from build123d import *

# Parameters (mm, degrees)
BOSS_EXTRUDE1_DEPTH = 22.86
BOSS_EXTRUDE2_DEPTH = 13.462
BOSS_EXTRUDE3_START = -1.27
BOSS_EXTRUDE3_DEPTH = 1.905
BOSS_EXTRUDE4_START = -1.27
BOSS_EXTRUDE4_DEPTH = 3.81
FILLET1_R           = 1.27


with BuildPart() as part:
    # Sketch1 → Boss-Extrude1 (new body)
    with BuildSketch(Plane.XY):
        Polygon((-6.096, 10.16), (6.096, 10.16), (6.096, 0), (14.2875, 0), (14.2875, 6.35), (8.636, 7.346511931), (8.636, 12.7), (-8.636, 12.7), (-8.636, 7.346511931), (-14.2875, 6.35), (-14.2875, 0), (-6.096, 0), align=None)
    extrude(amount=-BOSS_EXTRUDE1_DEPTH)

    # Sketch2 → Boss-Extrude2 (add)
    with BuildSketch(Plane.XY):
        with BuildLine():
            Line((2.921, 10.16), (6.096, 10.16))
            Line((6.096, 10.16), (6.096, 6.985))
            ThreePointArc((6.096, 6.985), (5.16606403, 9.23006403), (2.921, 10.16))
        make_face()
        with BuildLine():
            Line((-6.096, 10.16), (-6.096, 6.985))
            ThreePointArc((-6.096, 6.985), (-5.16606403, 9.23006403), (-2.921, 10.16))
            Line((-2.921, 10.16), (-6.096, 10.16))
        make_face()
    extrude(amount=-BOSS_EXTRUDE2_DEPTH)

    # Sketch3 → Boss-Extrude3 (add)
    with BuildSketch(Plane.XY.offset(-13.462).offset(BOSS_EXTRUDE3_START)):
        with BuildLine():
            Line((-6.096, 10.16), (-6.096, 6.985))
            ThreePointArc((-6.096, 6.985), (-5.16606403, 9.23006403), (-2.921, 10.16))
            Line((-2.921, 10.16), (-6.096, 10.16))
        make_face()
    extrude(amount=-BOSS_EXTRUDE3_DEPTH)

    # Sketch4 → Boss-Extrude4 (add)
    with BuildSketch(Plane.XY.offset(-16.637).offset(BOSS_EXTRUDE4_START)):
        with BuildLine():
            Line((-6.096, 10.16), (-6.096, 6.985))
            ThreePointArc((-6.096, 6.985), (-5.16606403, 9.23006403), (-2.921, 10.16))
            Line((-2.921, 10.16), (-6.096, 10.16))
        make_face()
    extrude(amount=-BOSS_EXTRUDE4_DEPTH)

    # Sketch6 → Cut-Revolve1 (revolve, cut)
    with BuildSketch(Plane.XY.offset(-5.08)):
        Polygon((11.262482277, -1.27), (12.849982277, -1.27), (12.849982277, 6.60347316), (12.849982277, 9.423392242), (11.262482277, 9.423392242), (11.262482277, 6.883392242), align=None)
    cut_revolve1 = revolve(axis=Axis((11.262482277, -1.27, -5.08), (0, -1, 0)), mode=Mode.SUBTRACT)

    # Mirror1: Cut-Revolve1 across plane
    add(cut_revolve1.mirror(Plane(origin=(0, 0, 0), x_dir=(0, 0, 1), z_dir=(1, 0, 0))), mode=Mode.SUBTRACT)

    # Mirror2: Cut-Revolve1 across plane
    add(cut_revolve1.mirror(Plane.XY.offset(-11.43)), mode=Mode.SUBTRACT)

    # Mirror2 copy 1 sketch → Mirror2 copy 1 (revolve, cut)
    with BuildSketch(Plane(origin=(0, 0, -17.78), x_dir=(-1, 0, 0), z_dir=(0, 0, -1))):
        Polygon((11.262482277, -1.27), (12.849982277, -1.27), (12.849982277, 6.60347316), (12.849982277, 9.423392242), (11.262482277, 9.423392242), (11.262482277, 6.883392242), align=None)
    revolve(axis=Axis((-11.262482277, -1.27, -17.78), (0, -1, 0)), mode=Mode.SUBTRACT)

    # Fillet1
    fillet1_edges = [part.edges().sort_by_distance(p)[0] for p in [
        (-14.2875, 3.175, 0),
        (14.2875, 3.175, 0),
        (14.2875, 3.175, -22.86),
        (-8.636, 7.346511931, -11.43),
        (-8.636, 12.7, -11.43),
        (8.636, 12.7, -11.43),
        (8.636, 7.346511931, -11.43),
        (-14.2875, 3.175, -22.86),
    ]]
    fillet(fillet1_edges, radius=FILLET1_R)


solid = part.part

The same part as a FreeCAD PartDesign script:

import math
import FreeCAD as App
import Part
import Sketcher

V = App.Vector
Q = App.Units.Quantity


def edges_at(feature, points):
    """Names of the edges that pass closest to the given points."""
    edges = feature.Shape.Edges
    near = lambda p: min(range(len(edges)), key=lambda i: edges[i].distToShape(Part.Vertex(*p))[0])
    return sorted({f"Edge{near(p) + 1}" for p in points})


def add_polygon(sketch, points):
    """Adds a closed chain of lines whose ends are joined by coincident constraints."""
    first, n = sketch.GeometryCount, len(points)
    for a, b in zip(points, points[1:] + points[:1]):
        sketch.addGeometry(Part.LineSegment(App.Vector(*a, 0), App.Vector(*b, 0)), False)
    for i in range(n):
        sketch.addConstraint(Sketcher.Constraint("Coincident", first + i, 2, first + (i + 1) % n, 1))

doc = App.newDocument("Part")
body = doc.addObject("PartDesign::Body", "Body")

sketch1 = body.newObject("Sketcher::SketchObject", "Sketch")
sketch1.AttachmentSupport = (doc.getObject("XY_Plane"), [""])
sketch1.MapMode = "FlatFace"
add_polygon(sketch1, [(-6.096, 10.16), (6.096, 10.16), (6.096, 0), (14.2875, 0), (14.2875, 6.35), (8.636, 7.346512), (8.636, 12.7), (-8.636, 12.7), (-8.636, 7.346512), (-14.2875, 6.35), (-14.2875, 0), (-6.096, 0)])
sketch1.addConstraint(Sketcher.Constraint("Horizontal", 0))
sketch1.addConstraint(Sketcher.Constraint("Vertical", 1))
sketch1.addConstraint(Sketcher.Constraint("Horizontal", 2))
sketch1.addConstraint(Sketcher.Constraint("Vertical", 3))
sketch1.addConstraint(Sketcher.Constraint("Vertical", 5))
sketch1.addConstraint(Sketcher.Constraint("Horizontal", 6))
sketch1.addConstraint(Sketcher.Constraint("Vertical", 7))
sketch1.addConstraint(Sketcher.Constraint("Vertical", 9))
sketch1.addConstraint(Sketcher.Constraint("Horizontal", 10))
sketch1.addConstraint(Sketcher.Constraint("Vertical", 11))
sketch1.addConstraint(Sketcher.Constraint("Symmetric", 2, 2, 9, 2, -1, 1))
sketch1.addConstraint(Sketcher.Constraint("Symmetric", 4, 2, 7, 2, -2))
sketch1.addConstraint(Sketcher.Constraint("Symmetric", 1, 2, 10, 2, -2))
sketch1.addConstraint(Sketcher.Constraint("Horizontal", 3, 2, 8, 2))
sketch1.addConstraint(Sketcher.Constraint("DistanceY", 1, 2, 1, 1, Q("0.4 in")))
sketch1.addConstraint(Sketcher.Constraint("Angle", 4, Q("170 deg")))
sketch1.addConstraint(Sketcher.Constraint("DistanceX", 0, 1, 0, 2, Q("0.48 in")))
sketch1.addConstraint(Sketcher.Constraint("DistanceX", 6, 2, 6, 1, Q("0.68 in")))
sketch1.addConstraint(Sketcher.Constraint("DistanceY", 3, 1, 3, 2, Q("0.25 in")))
sketch1.addConstraint(Sketcher.Constraint("DistanceY", -1, 1, 5, 2, Q("0.5 in")))
sketch1.addConstraint(Sketcher.Constraint("DistanceX", 2, 1, 2, 2, Q("0.3225 in")))
pad1 = body.newObject("PartDesign::Pad", "Pad")
pad1.Profile = sketch1
pad1.Length = Q("0.9 in")
pad1.Reversed = True

sketch2 = body.newObject("Sketcher::SketchObject", "Sketch001")
sketch2.AttachmentSupport = (doc.getObject("XY_Plane"), [""])
sketch2.MapMode = "FlatFace"
sketch2.addGeometry(Part.LineSegment(V(6.096, 10.16, 0), V(2.921, 10.16, 0)), False)
sketch2.addGeometry(Part.ArcOfCircle(Part.Circle(V(2.921, 6.985, 0), V(0, 0, 1), 3.175), math.radians(0), math.radians(90)), False)
sketch2.addGeometry(Part.LineSegment(V(6.096, 6.985, 0), V(6.096, 10.16, 0)), False)
sketch2.addGeometry(Part.LineSegment(V(-6.096, 10.16, 0), V(-6.096, 6.985, 0)), False)
sketch2.addGeometry(Part.ArcOfCircle(Part.Circle(V(-2.921, 6.985, 0), V(0, 0, 1), 3.175), math.radians(90), math.radians(180)), False)
sketch2.addGeometry(Part.LineSegment(V(-2.921, 10.16, 0), V(-6.096, 10.16, 0)), False)
sketch2.addConstraint(Sketcher.Constraint("Tangent", 0, 2, 1, 2))
sketch2.addConstraint(Sketcher.Constraint("Tangent", 1, 1, 2, 1))
sketch2.addConstraint(Sketcher.Constraint("Coincident", 2, 2, 0, 1))
sketch2.addConstraint(Sketcher.Constraint("Tangent", 3, 2, 4, 2))
sketch2.addConstraint(Sketcher.Constraint("Tangent", 4, 1, 5, 1))
sketch2.addConstraint(Sketcher.Constraint("Coincident", 5, 2, 3, 1))
sketch2.addConstraint(Sketcher.Constraint("Horizontal", 0))
sketch2.addConstraint(Sketcher.Constraint("Vertical", 2))
sketch2.addConstraint(Sketcher.Constraint("Vertical", 3))
sketch2.addConstraint(Sketcher.Constraint("Horizontal", 5))
sketch2.addConstraint(Sketcher.Constraint("Equal", 1, 4))
sketch2.addConstraint(Sketcher.Constraint("Symmetric", 1, 3, 4, 3, -2))
sketch2.addConstraint(Sketcher.Constraint("Radius", 1, Q("0.125 in")))
sketch2.addConstraint(Sketcher.Constraint("DistanceY", -1, 1, 0, 2, Q("0.4 in")))
sketch2.addConstraint(Sketcher.Constraint("DistanceX", -1, 1, 1, 1, Q("0.24 in")))
pad2 = body.newObject("PartDesign::Pad", "Pad001")
pad2.Profile = sketch2
pad2.Length = Q("0.53 in")
pad2.Reversed = True

sketch3 = body.newObject("Sketcher::SketchObject", "Sketch002")
sketch3.AttachmentSupport = (doc.getObject("XY_Plane"), [""])
sketch3.MapMode = "FlatFace"
sketch3.AttachmentOffset = App.Placement(V(0, 0, -0.58 * 25.4), App.Rotation())
sketch3.addGeometry(Part.LineSegment(V(-6.096, 10.16, 0), V(-6.096, 6.985, 0)), False)
sketch3.addGeometry(Part.ArcOfCircle(Part.Circle(V(-2.921, 6.985, 0), V(0, 0, 1), 3.175), math.radians(90), math.radians(180)), False)
sketch3.addGeometry(Part.LineSegment(V(-2.921, 10.16, 0), V(-6.096, 10.16, 0)), False)
sketch3.addConstraint(Sketcher.Constraint("Tangent", 0, 2, 1, 2))
sketch3.addConstraint(Sketcher.Constraint("Tangent", 1, 1, 2, 1))
sketch3.addConstraint(Sketcher.Constraint("Coincident", 2, 2, 0, 1))
sketch3.addConstraint(Sketcher.Constraint("Vertical", 0))
sketch3.addConstraint(Sketcher.Constraint("Horizontal", 2))
sketch3.addConstraint(Sketcher.Constraint("Radius", 1, Q("0.125 in")))
sketch3.addConstraint(Sketcher.Constraint("DistanceY", -1, 1, 1, 1, Q("0.4 in")))
sketch3.addConstraint(Sketcher.Constraint("DistanceX", 0, 2, -1, 1, Q("0.24 in")))
pad3 = body.newObject("PartDesign::Pad", "Pad002")
pad3.Profile = sketch3
pad3.Length = Q("0.075 in")
pad3.Reversed = True

sketch4 = body.newObject("Sketcher::SketchObject", "Sketch003")
sketch4.AttachmentSupport = (doc.getObject("XY_Plane"), [""])
sketch4.MapMode = "FlatFace"
sketch4.AttachmentOffset = App.Placement(V(0, 0, -0.705 * 25.4), App.Rotation())
sketch4.addGeometry(Part.LineSegment(V(-6.096, 10.16, 0), V(-6.096, 6.985, 0)), False)
sketch4.addGeometry(Part.ArcOfCircle(Part.Circle(V(-2.921, 6.985, 0), V(0, 0, 1), 3.175), math.radians(90), math.radians(180)), False)
sketch4.addGeometry(Part.LineSegment(V(-2.921, 10.16, 0), V(-6.096, 10.16, 0)), False)
sketch4.addConstraint(Sketcher.Constraint("Tangent", 0, 2, 1, 2))
sketch4.addConstraint(Sketcher.Constraint("Tangent", 1, 1, 2, 1))
sketch4.addConstraint(Sketcher.Constraint("Coincident", 2, 2, 0, 1))
sketch4.addConstraint(Sketcher.Constraint("Vertical", 0))
sketch4.addConstraint(Sketcher.Constraint("Horizontal", 2))
sketch4.addConstraint(Sketcher.Constraint("Radius", 1, Q("0.125 in")))
sketch4.addConstraint(Sketcher.Constraint("DistanceY", -1, 1, 1, 1, Q("0.4 in")))
sketch4.addConstraint(Sketcher.Constraint("DistanceX", 0, 2, -1, 1, Q("0.24 in")))
pad4 = body.newObject("PartDesign::Pad", "Pad003")
pad4.Profile = sketch4
pad4.Length = Q("0.15 in")
pad4.Reversed = True

sketch5 = body.newObject("Sketcher::SketchObject", "Sketch004")
sketch5.AttachmentSupport = (doc.getObject("XY_Plane"), [""])
sketch5.MapMode = "FlatFace"
sketch5.AttachmentOffset = App.Placement(V(0, 0, -0.2 * 25.4), App.Rotation())
add_polygon(sketch5, [(11.262482, -1.27), (12.849982, -1.27), (12.849982, 9.423392), (11.262482, 9.423392)])
sketch5.addGeometry(Part.LineSegment(V(11.262482, 9.423392, 0), V(11.262482, -1.27, 0)), True)
sketch5.addConstraint(Sketcher.Constraint("Horizontal", 0))
sketch5.addConstraint(Sketcher.Constraint("Vertical", 1))
sketch5.addConstraint(Sketcher.Constraint("Horizontal", 2))
sketch5.addConstraint(Sketcher.Constraint("Vertical", 3))
sketch5.addConstraint(Sketcher.Constraint("Vertical", 4))
sketch5.addConstraint(Sketcher.Constraint("Coincident", 4, 1, 2, 2))
sketch5.addConstraint(Sketcher.Constraint("Horizontal", 0, 2, 4, 2))
sketch5.addConstraint(Sketcher.Constraint("DistanceX", 0, 1, 0, 2, Q("0.0625 in")))
sketch5.addConstraint(Sketcher.Constraint("DistanceY", 0, 2, -1, 1, Q("0.05 in")))
sketch5.addConstraint(Sketcher.Constraint("DistanceY", 1, 1, 1, 2, 10.693392))
sketch5.addConstraint(Sketcher.Constraint("DistanceX", -1, 1, 0, 2, 12.849982))
groove = body.newObject("PartDesign::Groove", "Groove")
groove.Profile = sketch5
groove.ReferenceAxis = (sketch5, ["Axis0"])
groove.Angle = 360
doc.recompute()

mirrored = body.newObject("PartDesign::Mirrored", "Mirrored")
mirrored.Originals = [groove]
mirrored.MirrorPlane = (doc.getObject("YZ_Plane"), [""])
body.Tip = mirrored
doc.recompute()

datumplane = body.newObject("PartDesign::Plane", "DatumPlane")
datumplane.AttachmentSupport = (doc.getObject("XY_Plane"), [""])
datumplane.MapMode = "FlatFace"
datumplane.AttachmentOffset = App.Placement(V(0, 0, -0.45 * 25.4), App.Rotation())
mirrored2 = body.newObject("PartDesign::Mirrored", "Mirrored001")
mirrored2.Originals = [groove]
mirrored2.MirrorPlane = (datumplane, [""])
body.Tip = mirrored2

sketch6 = body.newObject("Sketcher::SketchObject", "Sketch005")
sketch6.AttachmentSupport = (doc.getObject("XY_Plane"), [""])
sketch6.MapMode = "FlatFace"
sketch6.AttachmentOffset = App.Placement(V(0, 0, -0.7 * 25.4), App.Rotation())
add_polygon(sketch6, [(-11.262482, -1.27), (-12.849982, -1.27), (-12.849982, 9.423392), (-11.262482, 9.423392)])
sketch6.addGeometry(Part.LineSegment(V(-11.262482, 9.423392, 0), V(-11.262482, -1.27, 0)), True)
sketch6.addConstraint(Sketcher.Constraint("Horizontal", 0))
sketch6.addConstraint(Sketcher.Constraint("Vertical", 1))
sketch6.addConstraint(Sketcher.Constraint("Horizontal", 2))
sketch6.addConstraint(Sketcher.Constraint("Vertical", 3))
sketch6.addConstraint(Sketcher.Constraint("Vertical", 4))
sketch6.addConstraint(Sketcher.Constraint("Coincident", 4, 1, 2, 2))
sketch6.addConstraint(Sketcher.Constraint("Horizontal", 0, 2, 4, 2))
sketch6.addConstraint(Sketcher.Constraint("DistanceX", 0, 2, 0, 1, Q("0.0625 in")))
sketch6.addConstraint(Sketcher.Constraint("DistanceY", 0, 2, -1, 1, Q("0.05 in")))
sketch6.addConstraint(Sketcher.Constraint("DistanceY", 1, 1, 1, 2, 10.693392))
sketch6.addConstraint(Sketcher.Constraint("DistanceX", 0, 2, -1, 1, 12.849982))
groove2 = body.newObject("PartDesign::Groove", "Groove001")
groove2.Profile = sketch6
groove2.ReferenceAxis = (sketch6, ["Axis0"])
groove2.Angle = 360
doc.recompute()

fillet = body.newObject("PartDesign::Fillet", "Fillet")
fillet.Base = (groove2, edges_at(groove2, [
    (-14.287, 3.175, 0),
    (14.287, 3.175, 0),
    (14.287, 3.175, -22.86),
    (-8.636, 7.347, -11.43),
    (-8.636, 12.7, -11.43),
    (8.636, 12.7, -11.43),
    (8.636, 7.347, -11.43),
    (-14.287, 3.175, -22.86),
]))
fillet.Radius = Q("0.05 in")

doc.recompute()
